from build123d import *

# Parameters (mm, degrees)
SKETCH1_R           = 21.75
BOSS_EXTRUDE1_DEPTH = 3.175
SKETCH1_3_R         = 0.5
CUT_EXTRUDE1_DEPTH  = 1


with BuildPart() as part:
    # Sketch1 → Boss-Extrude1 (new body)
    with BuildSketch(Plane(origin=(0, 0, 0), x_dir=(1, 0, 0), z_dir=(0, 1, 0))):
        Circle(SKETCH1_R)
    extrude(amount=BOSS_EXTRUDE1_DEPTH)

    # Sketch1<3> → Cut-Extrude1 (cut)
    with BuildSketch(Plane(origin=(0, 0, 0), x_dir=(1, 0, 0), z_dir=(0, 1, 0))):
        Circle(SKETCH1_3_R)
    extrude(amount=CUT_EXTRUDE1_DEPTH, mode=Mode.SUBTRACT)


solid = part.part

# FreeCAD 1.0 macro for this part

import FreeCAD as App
import Part
import Sketcher
Q = App.Units.Quantity

doc = App.newDocument("Part")
body = doc.addObject("PartDesign::Body", "Body")

# Sketch on XZ plane
sketch1 = body.newObject("Sketcher::SketchObject", "Sketch")
sketch1.AttachmentSupport = (doc.getObject("XZ_Plane"), [""])
sketch1.MapMode = "FlatFace"
sketch1.addGeometry(Part.Circle(App.Vector(0, 0, 0), App.Vector(0, 0, 1), 22), False)
sketch1.addConstraint(Sketcher.Constraint("Coincident", 0, 3, -1, 1))
sketch1.addConstraint(Sketcher.Constraint("Diameter", 0, Q("43.5 mm")))
pad1 = body.newObject("PartDesign::Pad", "Pad")
pad1.Profile = sketch1
pad1.Length = 3.175
pad1.Reversed = True

# Sketch on XZ plane
sketch2 = body.newObject("Sketcher::SketchObject", "Sketch001")
sketch2.AttachmentSupport = (doc.getObject("XZ_Plane"), [""])
sketch2.MapMode = "FlatFace"
sketch2.addGeometry(Part.Circle(App.Vector(0, 0, 0), App.Vector(0, 0, 1), 0.5), False)
sketch2.addConstraint(Sketcher.Constraint("Coincident", 0, 3, -1, 1))
sketch2.addConstraint(Sketcher.Constraint("Diameter", 0, Q("1 mm")))
pocket1 = body.newObject("PartDesign::Pocket", "Pocket")
pocket1.Profile = sketch2
pocket1.Length = 1

doc.recompute()
